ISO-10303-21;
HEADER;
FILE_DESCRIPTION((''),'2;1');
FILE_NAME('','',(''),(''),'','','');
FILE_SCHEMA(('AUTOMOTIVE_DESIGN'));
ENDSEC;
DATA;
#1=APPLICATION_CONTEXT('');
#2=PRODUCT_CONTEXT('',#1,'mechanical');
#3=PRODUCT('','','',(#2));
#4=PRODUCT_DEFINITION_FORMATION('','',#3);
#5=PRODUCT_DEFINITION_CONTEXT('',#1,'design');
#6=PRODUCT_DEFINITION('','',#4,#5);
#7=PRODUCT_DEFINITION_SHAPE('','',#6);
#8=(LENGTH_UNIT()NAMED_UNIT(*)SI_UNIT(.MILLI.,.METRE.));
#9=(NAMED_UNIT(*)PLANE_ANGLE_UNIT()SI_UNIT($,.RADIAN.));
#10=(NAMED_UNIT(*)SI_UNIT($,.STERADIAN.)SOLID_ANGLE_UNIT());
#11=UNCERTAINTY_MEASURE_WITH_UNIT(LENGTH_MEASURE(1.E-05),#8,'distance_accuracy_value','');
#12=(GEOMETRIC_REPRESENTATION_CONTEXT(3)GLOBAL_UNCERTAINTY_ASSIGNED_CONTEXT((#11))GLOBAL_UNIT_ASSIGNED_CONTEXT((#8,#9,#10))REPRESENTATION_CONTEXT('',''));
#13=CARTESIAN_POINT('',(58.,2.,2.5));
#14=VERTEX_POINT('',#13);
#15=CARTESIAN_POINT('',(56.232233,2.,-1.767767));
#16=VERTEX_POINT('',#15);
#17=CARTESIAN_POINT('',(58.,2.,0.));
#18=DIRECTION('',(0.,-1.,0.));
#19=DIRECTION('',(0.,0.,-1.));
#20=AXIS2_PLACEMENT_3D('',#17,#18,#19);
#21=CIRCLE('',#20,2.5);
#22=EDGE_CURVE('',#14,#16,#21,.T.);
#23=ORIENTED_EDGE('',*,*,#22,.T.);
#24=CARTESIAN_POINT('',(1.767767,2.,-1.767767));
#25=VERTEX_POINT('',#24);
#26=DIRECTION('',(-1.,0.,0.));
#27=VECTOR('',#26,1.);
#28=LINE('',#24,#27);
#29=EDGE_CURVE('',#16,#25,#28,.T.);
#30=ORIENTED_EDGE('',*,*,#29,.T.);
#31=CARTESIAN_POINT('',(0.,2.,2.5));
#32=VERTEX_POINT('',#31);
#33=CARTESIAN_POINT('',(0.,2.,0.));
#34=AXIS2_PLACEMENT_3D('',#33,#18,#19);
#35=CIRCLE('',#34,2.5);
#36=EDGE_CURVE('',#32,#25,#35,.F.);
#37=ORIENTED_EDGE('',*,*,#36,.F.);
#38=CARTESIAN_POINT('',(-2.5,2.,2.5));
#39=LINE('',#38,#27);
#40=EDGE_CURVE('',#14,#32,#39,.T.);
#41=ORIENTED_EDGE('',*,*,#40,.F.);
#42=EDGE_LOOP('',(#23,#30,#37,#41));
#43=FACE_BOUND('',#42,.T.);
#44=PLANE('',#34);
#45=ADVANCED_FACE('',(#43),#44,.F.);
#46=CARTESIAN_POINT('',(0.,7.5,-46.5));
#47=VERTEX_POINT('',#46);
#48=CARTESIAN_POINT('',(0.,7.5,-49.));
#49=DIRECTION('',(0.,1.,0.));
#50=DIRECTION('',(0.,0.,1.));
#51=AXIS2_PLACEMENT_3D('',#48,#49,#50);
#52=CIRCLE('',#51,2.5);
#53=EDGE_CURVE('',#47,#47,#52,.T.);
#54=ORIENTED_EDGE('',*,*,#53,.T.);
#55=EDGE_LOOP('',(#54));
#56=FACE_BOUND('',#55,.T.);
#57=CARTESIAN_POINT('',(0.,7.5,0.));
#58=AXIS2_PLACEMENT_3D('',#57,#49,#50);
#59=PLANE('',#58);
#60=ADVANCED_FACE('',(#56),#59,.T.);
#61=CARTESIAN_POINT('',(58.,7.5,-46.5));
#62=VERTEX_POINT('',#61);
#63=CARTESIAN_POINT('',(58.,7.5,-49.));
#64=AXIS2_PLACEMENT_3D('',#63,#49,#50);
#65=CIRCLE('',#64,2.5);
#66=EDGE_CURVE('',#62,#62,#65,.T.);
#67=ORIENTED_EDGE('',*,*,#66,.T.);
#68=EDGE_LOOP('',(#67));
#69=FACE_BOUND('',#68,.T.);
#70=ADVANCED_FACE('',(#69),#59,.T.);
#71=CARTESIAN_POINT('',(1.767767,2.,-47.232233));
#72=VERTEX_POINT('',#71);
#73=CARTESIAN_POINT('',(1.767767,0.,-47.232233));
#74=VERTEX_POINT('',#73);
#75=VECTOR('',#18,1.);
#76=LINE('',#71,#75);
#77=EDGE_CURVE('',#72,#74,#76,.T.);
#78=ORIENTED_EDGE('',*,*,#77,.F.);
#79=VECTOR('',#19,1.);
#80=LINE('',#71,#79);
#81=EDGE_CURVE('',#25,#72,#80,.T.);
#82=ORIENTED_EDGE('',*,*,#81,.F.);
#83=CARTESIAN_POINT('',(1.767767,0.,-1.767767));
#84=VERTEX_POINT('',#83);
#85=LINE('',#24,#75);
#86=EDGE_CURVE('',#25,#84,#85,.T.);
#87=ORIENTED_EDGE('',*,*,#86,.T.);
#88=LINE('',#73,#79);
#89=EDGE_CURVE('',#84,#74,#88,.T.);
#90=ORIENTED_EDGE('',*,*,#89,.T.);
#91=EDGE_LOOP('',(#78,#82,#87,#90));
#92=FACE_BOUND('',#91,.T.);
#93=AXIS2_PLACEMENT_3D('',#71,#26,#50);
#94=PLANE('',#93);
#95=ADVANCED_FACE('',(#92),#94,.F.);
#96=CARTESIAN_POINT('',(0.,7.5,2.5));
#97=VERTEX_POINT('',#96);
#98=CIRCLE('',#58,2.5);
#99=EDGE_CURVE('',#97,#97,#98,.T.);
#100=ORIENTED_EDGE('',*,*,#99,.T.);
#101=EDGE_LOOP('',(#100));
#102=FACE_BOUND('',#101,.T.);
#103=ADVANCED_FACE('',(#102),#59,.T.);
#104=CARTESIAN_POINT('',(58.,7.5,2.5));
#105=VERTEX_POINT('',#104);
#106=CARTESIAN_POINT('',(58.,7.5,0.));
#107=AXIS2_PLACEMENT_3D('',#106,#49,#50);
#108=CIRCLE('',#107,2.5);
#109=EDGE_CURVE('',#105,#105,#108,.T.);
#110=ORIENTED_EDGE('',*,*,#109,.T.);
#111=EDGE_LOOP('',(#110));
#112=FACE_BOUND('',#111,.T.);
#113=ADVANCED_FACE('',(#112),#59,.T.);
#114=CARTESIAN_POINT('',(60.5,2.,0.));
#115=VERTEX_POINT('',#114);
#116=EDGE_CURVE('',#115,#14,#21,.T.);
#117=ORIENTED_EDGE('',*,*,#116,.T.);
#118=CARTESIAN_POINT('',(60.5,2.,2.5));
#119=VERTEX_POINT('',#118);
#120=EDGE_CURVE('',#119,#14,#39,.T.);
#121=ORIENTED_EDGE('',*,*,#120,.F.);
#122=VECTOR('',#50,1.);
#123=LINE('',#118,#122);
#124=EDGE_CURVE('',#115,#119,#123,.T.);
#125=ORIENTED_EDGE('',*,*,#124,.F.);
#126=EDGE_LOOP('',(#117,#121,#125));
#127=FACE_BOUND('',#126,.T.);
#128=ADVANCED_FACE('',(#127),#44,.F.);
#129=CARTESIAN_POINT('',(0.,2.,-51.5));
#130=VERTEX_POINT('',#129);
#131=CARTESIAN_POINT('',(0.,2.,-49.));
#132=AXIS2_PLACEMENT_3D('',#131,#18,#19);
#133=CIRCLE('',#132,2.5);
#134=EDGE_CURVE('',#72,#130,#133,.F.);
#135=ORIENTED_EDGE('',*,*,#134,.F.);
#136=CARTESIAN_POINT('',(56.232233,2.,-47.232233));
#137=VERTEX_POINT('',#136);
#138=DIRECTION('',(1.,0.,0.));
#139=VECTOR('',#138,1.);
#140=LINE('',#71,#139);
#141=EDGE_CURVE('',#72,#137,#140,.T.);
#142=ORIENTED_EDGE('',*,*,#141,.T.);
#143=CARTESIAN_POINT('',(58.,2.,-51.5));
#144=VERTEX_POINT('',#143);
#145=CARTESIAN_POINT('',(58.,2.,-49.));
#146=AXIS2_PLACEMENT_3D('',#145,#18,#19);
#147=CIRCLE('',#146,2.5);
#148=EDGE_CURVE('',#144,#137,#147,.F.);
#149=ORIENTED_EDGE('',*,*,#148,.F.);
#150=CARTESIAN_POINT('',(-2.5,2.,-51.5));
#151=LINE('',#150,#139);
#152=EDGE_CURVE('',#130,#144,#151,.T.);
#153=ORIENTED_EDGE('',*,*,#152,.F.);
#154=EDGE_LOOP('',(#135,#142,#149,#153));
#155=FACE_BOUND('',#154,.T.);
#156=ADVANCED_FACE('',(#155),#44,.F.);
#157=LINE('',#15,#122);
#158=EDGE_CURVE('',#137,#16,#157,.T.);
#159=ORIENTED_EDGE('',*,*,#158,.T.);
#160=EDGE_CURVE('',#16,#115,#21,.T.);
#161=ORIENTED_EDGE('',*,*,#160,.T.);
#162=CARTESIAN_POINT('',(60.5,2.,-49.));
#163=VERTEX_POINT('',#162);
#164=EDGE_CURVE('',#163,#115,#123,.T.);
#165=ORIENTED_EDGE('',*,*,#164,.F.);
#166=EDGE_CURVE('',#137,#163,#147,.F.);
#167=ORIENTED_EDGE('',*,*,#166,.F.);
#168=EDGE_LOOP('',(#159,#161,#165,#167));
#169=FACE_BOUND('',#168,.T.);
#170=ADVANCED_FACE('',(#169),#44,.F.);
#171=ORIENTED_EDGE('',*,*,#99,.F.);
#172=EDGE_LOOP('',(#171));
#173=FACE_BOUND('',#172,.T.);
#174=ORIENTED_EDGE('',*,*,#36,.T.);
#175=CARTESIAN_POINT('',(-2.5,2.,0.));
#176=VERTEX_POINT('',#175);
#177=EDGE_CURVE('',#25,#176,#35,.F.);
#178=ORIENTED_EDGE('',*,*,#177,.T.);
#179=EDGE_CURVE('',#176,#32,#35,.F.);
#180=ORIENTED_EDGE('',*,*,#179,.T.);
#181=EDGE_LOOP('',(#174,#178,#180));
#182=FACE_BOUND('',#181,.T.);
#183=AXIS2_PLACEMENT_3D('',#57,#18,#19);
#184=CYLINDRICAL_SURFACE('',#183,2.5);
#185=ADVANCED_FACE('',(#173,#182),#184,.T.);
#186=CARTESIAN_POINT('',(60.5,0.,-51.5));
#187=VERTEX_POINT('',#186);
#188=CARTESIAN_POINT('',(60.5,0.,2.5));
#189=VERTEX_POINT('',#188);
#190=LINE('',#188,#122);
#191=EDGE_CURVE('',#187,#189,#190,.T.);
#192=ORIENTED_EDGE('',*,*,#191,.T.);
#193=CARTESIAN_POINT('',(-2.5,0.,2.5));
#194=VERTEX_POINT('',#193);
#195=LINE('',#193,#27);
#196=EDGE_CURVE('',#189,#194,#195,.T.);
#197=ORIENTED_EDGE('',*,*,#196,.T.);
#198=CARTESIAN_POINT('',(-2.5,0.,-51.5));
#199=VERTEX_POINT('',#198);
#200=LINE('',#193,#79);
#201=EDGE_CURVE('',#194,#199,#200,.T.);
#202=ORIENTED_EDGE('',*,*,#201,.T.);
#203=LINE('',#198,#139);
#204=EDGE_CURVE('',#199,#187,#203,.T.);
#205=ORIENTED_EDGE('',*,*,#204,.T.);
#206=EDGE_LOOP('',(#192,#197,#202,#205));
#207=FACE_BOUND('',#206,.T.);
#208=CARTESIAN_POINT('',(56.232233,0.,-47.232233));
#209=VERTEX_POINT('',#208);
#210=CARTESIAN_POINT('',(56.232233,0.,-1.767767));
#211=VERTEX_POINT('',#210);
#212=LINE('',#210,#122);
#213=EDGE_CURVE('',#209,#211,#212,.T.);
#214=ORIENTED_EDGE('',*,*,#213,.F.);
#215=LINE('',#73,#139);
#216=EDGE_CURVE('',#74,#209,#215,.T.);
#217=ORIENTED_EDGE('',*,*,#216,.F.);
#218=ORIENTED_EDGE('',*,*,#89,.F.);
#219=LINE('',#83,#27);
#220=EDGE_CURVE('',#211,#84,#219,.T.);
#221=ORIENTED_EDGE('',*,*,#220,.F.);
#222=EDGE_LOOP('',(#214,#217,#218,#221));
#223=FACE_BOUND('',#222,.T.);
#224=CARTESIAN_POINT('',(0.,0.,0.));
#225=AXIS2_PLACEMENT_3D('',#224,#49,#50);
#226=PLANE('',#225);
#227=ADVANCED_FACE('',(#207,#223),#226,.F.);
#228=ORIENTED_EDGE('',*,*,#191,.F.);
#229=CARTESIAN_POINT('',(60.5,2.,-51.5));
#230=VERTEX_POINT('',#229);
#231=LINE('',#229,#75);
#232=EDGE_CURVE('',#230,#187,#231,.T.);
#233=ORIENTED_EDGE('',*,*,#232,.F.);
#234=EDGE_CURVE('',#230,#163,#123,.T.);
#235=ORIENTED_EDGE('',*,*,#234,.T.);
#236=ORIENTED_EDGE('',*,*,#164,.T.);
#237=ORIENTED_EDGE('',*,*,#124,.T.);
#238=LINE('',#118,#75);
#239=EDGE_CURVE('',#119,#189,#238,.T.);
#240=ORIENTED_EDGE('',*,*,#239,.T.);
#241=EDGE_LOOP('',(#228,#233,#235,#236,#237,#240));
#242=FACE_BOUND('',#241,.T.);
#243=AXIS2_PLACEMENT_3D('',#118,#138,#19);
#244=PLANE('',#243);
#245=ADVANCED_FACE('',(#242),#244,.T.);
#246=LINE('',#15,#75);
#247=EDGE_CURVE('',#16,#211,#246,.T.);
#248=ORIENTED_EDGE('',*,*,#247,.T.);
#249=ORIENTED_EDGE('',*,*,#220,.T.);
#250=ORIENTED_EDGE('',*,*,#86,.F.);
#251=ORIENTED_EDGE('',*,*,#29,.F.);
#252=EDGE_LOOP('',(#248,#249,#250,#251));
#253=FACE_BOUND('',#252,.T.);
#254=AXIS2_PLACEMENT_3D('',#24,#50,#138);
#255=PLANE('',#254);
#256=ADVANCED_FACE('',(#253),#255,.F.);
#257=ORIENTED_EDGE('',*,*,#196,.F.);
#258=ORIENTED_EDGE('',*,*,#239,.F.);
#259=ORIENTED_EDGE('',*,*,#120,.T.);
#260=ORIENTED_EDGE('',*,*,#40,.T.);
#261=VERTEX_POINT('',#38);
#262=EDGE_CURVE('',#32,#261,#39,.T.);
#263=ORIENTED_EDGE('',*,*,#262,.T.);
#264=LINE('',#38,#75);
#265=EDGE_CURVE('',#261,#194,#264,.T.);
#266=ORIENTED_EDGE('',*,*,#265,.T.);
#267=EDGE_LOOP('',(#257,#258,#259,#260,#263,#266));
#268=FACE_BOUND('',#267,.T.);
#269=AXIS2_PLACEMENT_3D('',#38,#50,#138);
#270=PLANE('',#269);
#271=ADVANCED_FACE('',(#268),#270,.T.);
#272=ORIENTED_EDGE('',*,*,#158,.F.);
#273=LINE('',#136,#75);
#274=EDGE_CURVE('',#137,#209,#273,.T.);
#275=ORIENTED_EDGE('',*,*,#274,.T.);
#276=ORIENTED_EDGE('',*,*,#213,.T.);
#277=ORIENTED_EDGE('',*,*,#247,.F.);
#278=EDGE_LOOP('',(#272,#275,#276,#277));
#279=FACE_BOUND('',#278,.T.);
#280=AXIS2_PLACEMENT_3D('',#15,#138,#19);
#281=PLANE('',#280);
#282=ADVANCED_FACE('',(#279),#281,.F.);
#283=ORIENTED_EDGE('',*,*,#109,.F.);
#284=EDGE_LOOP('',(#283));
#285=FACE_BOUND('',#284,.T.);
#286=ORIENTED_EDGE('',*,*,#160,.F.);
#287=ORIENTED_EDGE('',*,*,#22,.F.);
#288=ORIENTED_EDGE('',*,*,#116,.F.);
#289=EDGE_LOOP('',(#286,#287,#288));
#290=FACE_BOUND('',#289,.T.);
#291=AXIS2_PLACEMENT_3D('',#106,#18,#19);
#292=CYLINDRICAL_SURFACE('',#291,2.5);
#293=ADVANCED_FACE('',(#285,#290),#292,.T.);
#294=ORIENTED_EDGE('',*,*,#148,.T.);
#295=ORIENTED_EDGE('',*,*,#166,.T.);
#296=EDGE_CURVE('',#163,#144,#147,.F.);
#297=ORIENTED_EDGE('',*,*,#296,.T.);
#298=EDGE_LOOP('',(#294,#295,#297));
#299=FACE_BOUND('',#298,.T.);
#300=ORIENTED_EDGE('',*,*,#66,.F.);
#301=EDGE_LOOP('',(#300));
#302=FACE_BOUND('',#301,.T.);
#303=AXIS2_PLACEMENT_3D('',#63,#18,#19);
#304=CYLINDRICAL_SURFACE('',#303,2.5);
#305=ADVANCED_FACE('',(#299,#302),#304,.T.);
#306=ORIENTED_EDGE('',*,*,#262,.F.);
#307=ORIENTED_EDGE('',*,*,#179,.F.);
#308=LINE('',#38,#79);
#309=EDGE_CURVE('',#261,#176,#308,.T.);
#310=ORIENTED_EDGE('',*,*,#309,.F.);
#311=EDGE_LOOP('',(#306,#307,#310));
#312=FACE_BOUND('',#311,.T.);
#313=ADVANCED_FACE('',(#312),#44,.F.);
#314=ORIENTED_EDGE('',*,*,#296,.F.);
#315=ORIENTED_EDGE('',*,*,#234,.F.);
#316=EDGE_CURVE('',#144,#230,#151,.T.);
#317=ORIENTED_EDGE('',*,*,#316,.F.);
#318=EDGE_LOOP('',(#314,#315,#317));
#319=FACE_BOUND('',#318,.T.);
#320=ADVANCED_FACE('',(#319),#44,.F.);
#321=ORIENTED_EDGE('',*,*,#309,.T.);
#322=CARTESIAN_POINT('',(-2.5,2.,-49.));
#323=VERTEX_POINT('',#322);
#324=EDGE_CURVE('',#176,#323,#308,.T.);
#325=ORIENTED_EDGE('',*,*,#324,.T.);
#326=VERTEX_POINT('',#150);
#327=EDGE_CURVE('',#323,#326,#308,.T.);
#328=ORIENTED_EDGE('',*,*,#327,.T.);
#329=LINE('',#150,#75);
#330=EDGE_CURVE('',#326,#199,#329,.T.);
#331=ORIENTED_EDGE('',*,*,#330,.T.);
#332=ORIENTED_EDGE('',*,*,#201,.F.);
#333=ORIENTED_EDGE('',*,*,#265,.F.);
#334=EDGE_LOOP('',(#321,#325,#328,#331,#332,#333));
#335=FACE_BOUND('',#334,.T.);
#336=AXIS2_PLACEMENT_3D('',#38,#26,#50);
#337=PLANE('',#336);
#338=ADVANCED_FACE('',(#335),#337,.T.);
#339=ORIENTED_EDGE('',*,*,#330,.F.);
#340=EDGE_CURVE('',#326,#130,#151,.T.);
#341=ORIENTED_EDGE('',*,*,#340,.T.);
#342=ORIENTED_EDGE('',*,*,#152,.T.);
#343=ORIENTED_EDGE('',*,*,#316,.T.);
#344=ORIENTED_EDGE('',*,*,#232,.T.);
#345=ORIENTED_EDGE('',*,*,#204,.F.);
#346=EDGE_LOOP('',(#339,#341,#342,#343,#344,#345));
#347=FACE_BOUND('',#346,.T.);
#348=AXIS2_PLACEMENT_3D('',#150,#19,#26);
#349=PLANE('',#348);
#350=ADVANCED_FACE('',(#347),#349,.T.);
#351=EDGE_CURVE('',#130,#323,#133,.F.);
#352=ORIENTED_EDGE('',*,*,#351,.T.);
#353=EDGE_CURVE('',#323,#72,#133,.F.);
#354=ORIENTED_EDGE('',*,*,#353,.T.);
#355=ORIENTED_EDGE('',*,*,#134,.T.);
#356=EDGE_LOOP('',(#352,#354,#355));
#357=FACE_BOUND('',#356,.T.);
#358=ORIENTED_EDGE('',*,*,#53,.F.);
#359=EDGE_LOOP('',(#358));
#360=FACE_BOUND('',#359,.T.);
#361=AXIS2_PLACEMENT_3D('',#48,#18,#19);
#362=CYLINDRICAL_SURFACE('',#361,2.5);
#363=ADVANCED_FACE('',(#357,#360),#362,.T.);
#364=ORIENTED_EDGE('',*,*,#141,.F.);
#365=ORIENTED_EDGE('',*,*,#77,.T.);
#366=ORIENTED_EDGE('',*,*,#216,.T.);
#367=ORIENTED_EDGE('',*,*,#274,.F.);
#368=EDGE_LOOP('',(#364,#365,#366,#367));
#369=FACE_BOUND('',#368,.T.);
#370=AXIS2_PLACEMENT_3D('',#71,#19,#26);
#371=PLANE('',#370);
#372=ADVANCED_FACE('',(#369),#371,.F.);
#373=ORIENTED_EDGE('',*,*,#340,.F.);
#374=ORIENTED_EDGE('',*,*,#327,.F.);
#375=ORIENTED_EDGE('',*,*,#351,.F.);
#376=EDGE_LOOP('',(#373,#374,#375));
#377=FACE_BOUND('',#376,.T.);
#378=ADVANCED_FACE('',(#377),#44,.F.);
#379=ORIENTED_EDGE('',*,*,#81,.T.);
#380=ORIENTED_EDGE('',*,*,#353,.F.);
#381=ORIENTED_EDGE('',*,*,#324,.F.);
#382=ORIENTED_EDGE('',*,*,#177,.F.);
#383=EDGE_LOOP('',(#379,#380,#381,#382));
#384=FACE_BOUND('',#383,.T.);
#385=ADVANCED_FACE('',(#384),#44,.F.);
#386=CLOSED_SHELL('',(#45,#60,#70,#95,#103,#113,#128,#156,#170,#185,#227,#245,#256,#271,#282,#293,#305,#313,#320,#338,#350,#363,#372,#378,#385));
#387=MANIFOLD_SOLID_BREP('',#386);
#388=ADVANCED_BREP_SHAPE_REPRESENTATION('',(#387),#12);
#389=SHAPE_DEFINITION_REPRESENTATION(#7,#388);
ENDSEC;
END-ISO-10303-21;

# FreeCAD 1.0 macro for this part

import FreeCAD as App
import Part
import Sketcher
from FreeCAD import Vector

doc = App.newDocument("Part")
body = doc.addObject("PartDesign::Body", "Body")
body.AllowCompound = True

# Sketch on XZ plane
sketch1 = doc.addObject("Sketcher::SketchObject", "Sketch")
body.addObject(sketch1)
sketch1.AttachmentSupport = (doc.XZ_Plane, [""])
sketch1.MapMode = "FlatFace"
sketch1.addGeometry(Part.Circle(Vector(58, 0, 0), Vector(0, 0, 1), 2.5), False)
sketch1.addGeometry(Part.Circle(Vector(0, 0, 0), Vector(0, 0, 1), 2.5), False)
sketch1.addGeometry(Part.Circle(Vector(0, -49, 0), Vector(0, 0, 1), 2.5), False)
sketch1.addGeometry(Part.Circle(Vector(58, -49, 0), Vector(0, 0, 1), 2.5), False)
sketch1.addConstraint(Sketcher.Constraint("Coincident", 1, 3, -1, 1))
sketch1.addConstraint(Sketcher.Constraint("Equal", 0, 1))
sketch1.addConstraint(Sketcher.Constraint("Equal", 1, 2))
sketch1.addConstraint(Sketcher.Constraint("Equal", 2, 3))
sketch1.addConstraint(Sketcher.Constraint("PointOnObject", 0, 3, -1))
sketch1.addConstraint(Sketcher.Constraint("PointOnObject", 2, 3, -2))
sketch1.addConstraint(Sketcher.Constraint("Horizontal", 2, 3, 3, 3))
sketch1.addConstraint(Sketcher.Constraint("Vertical", 0, 3, 3, 3))
sketch1.addConstraint(Sketcher.Constraint("Diameter", 0, 5.0))
sketch1.addConstraint(Sketcher.Constraint("DistanceX", -1, 1, 0, 3, 58.0))
sketch1.addConstraint(Sketcher.Constraint("DistanceY", 2, 3, -1, 1, 49.0))
pad1 = doc.addObject("PartDesign::Pad", "Pad")
body.addObject(pad1)
pad1.Profile = sketch1
pad1.Length = 7.5
pad1.Reversed = True

# Sketch on XZ plane
sketch2 = doc.addObject("Sketcher::SketchObject", "Sketch001")
body.addObject(sketch2)
sketch2.AttachmentSupport = (doc.XZ_Plane, [""])
sketch2.MapMode = "FlatFace"
sketch2.addGeometry(Part.LineSegment(Vector(-2, 2, 0), Vector(-2, -52, 0)), False)
sketch2.addGeometry(Part.LineSegment(Vector(-2, -52, 0), Vector(60, -52, 0)), False)
sketch2.addGeometry(Part.LineSegment(Vector(60, -52, 0), Vector(60, 2, 0)), False)
sketch2.addGeometry(Part.LineSegment(Vector(60, 2, 0), Vector(-2, 2, 0)), False)
sketch2.addGeometry(Part.LineSegment(Vector(56, -47, 0), Vector(2, -47, 0)), False)
sketch2.addGeometry(Part.LineSegment(Vector(2, -47, 0), Vector(2, -2, 0)), False)
sketch2.addGeometry(Part.LineSegment(Vector(2, -2, 0), Vector(56, -2, 0)), False)
sketch2.addGeometry(Part.LineSegment(Vector(56, -2, 0), Vector(56, -47, 0)), False)
sketch2.addConstraint(Sketcher.Constraint("Coincident", 0, 2, 1, 1))
sketch2.addConstraint(Sketcher.Constraint("Coincident", 1, 2, 2, 1))
sketch2.addConstraint(Sketcher.Constraint("Coincident", 2, 2, 3, 1))
sketch2.addConstraint(Sketcher.Constraint("Coincident", 3, 2, 0, 1))
sketch2.addConstraint(Sketcher.Constraint("Coincident", 4, 2, 5, 1))
sketch2.addConstraint(Sketcher.Constraint("Coincident", 5, 2, 6, 1))
sketch2.addConstraint(Sketcher.Constraint("Coincident", 6, 2, 7, 1))
sketch2.addConstraint(Sketcher.Constraint("Coincident", 7, 2, 4, 1))
sketch2.addConstraint(Sketcher.Constraint("Vertical", 0))
sketch2.addConstraint(Sketcher.Constraint("Horizontal", 1))
sketch2.addConstraint(Sketcher.Constraint("Vertical", 2))
sketch2.addConstraint(Sketcher.Constraint("Horizontal", 3))
sketch2.addConstraint(Sketcher.Constraint("Horizontal", 4))
sketch2.addConstraint(Sketcher.Constraint("Vertical", 5))
sketch2.addConstraint(Sketcher.Constraint("Horizontal", 6))
sketch2.addConstraint(Sketcher.Constraint("Vertical", 7))
sketch2.addConstraint(Sketcher.Constraint("DistanceX", 1, 1, 1, 2, 63.0))
sketch2.addConstraint(Sketcher.Constraint("DistanceY", 0, 2, 0, 1, 54.0))
sketch2.addConstraint(Sketcher.Constraint("DistanceX", 0, 2, -1, 1, 2.5))
sketch2.addConstraint(Sketcher.Constraint("DistanceY", 0, 2, -1, 1, 51.5))
sketch2.addConstraint(Sketcher.Constraint("DistanceX", 4, 2, 4, 1, 54.464466))
sketch2.addConstraint(Sketcher.Constraint("DistanceY", 5, 1, 5, 2, 45.464466))
sketch2.addConstraint(Sketcher.Constraint("DistanceX", -1, 1, 4, 2, 1.767767))
sketch2.addConstraint(Sketcher.Constraint("DistanceY", 4, 2, -1, 1, 47.232233))
pad2 = doc.addObject("PartDesign::Pad", "Pad001")
body.addObject(pad2)
pad2.Profile = sketch2
pad2.Length = 2
pad2.Reversed = True

doc.recompute()
